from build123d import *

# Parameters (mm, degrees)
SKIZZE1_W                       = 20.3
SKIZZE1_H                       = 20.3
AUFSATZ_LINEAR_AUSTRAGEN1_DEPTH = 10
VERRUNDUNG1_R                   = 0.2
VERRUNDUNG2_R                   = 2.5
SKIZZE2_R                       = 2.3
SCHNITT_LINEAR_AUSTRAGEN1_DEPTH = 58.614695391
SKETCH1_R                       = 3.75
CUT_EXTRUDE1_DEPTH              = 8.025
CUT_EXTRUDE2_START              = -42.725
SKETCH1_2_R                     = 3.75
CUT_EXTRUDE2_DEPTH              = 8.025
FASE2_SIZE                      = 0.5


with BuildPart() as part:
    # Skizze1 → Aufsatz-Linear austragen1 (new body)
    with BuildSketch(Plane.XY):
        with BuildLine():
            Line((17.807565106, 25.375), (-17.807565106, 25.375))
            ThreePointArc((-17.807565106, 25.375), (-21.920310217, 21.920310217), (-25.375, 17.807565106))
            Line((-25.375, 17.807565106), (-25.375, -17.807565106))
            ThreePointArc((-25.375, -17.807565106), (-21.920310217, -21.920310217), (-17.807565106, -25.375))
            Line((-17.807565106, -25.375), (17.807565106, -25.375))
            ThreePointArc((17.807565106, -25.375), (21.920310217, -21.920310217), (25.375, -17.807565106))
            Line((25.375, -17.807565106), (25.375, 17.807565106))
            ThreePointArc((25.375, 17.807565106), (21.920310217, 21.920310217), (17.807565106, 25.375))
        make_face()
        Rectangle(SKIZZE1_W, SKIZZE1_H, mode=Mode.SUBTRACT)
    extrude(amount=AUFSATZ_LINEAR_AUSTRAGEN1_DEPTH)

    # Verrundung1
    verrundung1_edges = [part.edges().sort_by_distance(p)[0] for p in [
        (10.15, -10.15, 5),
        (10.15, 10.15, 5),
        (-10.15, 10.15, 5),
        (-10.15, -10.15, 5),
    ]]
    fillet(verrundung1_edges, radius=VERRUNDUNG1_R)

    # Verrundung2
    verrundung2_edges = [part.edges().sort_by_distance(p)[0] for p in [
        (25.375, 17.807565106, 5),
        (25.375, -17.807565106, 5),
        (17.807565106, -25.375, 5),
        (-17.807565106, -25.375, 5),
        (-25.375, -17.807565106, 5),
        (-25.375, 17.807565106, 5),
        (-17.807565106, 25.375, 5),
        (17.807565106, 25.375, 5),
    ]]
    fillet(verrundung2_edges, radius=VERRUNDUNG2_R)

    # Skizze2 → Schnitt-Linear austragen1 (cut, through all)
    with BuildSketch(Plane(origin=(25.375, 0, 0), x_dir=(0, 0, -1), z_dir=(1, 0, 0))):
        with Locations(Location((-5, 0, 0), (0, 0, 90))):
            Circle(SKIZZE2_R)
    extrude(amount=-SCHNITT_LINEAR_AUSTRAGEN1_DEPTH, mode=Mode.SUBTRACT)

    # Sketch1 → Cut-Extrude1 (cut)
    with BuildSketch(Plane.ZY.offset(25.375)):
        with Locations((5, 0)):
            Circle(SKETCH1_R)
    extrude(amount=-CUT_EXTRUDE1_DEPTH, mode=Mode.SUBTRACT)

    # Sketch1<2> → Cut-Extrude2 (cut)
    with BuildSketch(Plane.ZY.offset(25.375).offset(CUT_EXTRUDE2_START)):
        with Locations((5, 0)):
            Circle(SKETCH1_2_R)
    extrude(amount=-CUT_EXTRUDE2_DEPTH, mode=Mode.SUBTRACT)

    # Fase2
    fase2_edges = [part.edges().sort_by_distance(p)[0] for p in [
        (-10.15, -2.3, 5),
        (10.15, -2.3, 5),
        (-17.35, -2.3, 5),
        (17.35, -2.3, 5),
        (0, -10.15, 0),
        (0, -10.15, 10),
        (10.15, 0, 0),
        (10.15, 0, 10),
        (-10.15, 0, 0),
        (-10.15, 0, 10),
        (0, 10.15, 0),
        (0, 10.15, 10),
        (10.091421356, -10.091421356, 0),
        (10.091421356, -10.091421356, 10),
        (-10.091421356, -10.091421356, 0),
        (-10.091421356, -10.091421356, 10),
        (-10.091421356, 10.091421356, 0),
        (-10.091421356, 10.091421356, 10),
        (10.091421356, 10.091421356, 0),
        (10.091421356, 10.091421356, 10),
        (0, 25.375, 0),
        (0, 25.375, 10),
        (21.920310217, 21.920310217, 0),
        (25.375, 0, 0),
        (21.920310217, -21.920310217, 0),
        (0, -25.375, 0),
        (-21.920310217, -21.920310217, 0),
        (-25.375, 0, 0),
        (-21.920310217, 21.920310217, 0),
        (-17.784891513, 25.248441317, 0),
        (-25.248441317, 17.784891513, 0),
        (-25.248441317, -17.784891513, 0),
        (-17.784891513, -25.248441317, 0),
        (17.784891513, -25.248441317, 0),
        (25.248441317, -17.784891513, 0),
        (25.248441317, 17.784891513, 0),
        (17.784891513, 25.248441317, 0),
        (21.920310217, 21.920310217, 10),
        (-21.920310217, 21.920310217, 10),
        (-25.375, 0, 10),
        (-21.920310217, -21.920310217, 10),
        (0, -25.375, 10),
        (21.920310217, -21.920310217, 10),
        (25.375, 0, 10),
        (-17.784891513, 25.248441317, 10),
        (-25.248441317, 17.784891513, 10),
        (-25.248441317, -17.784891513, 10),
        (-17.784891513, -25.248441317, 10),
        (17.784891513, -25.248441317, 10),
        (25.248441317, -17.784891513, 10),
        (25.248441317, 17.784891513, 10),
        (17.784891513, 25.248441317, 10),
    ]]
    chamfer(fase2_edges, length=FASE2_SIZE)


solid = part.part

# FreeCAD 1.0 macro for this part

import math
import FreeCAD as App
import Part
import Sketcher


def edges_at(feature, points):
    """Names of the edges that pass closest to the given points."""
    edges = feature.Shape.Edges
    near = lambda p: min(range(len(edges)), key=lambda i: edges[i].distToShape(Part.Vertex(*p))[0])
    return sorted({f"Edge{near(p) + 1}" for p in points})


def add_polygon(sketch, points):
    """Adds a closed chain of lines whose ends are joined by coincident constraints."""
    first, n = sketch.GeometryCount, len(points)
    for a, b in zip(points, points[1:] + points[:1]):
        sketch.addGeometry(Part.LineSegment(App.Vector(*a, 0), App.Vector(*b, 0)), False)
    for i in range(n):
        sketch.addConstraint(Sketcher.Constraint("Coincident", first + i, 2, first + (i + 1) % n, 1))

doc = App.newDocument("Part")
params = doc.addObject("Spreadsheet::Sheet", "Params")
for row, (alias, value) in enumerate([
    ("sketch1_radius", "31 mm"),
    ("sketch1_width", "20.3 mm"),
    ("pad1_length", "10 mm"),
    ("fillet_radius", "0.2 mm"),
    ("fillet2_radius", "2.5 mm"),
    ("sketch2_diameter", "4.6 mm"),
    ("sketch3_diameter", "7.5 mm"),
    ("pocket2_length", "8.025 mm"),
    ("sketch4_diameter", "7.5 mm"),
    ("pocket3_length", "8.025 mm"),
    ("chamfer_size", "0.5 mm"),
], start=1):
    params.set(f"A{row}", alias)
    params.set(f"B{row}", "=" + value)
    params.setAlias(f"B{row}", alias)

body = doc.addObject("PartDesign::Body", "Body")

# Sketch on XY plane
sketch1 = body.newObject("Sketcher::SketchObject", "Sketch")
sketch1.AttachmentSupport = (doc.getObject("XY_Plane"), [""])
sketch1.MapMode = "FlatFace"
sketch1.addGeometry(Part.LineSegment(App.Vector(18, 25, 0), App.Vector(-18, 25, 0)), False)  # 0
sketch1.addGeometry(Part.ArcOfCircle(Part.Circle(App.Vector(0, 0, 0), App.Vector(0, 0, 1), 31), math.radians(125.06), math.radians(144.94)), False)  # 1
sketch1.addGeometry(Part.LineSegment(App.Vector(-25, 18, 0), App.Vector(-25, -18, 0)), False)  # 2
sketch1.addGeometry(Part.ArcOfCircle(Part.Circle(App.Vector(0, 0, 0), App.Vector(0, 0, 1), 31), math.radians(-144.94), math.radians(-125.06)), False)  # 3
sketch1.addGeometry(Part.LineSegment(App.Vector(-18, -25, 0), App.Vector(18, -25, 0)), False)  # 4
sketch1.addGeometry(Part.ArcOfCircle(Part.Circle(App.Vector(0, 0, 0), App.Vector(0, 0, 1), 31), math.radians(-54.94), math.radians(-35.06)), False)  # 5
sketch1.addGeometry(Part.LineSegment(App.Vector(25, -18, 0), App.Vector(25, 18, 0)), False)  # 6
sketch1.addGeometry(Part.ArcOfCircle(Part.Circle(App.Vector(0, 0, 0), App.Vector(0, 0, 1), 31), math.radians(35.06), math.radians(54.94)), False)  # 7
add_polygon(sketch1, [(10, -10), (-10, -10), (-10, 10), (10, 10)])  # lines 8-11
sketch1.addConstraint(Sketcher.Constraint("Coincident", 0, 2, 1, 1))
sketch1.addConstraint(Sketcher.Constraint("Coincident", 1, 2, 2, 1))
sketch1.addConstraint(Sketcher.Constraint("Coincident", 2, 2, 3, 1))
sketch1.addConstraint(Sketcher.Constraint("Coincident", 3, 2, 4, 1))
sketch1.addConstraint(Sketcher.Constraint("Coincident", 4, 2, 5, 1))
sketch1.addConstraint(Sketcher.Constraint("Coincident", 5, 2, 6, 1))
sketch1.addConstraint(Sketcher.Constraint("Coincident", 6, 2, 7, 1))
sketch1.addConstraint(Sketcher.Constraint("Coincident", 7, 2, 0, 1))
sketch1.addConstraint(Sketcher.Constraint("Horizontal", 0))
sketch1.addConstraint(Sketcher.Constraint("Vertical", 2))
sketch1.addConstraint(Sketcher.Constraint("Horizontal", 4))
sketch1.addConstraint(Sketcher.Constraint("Vertical", 6))
sketch1.addConstraint(Sketcher.Constraint("Horizontal", 8))
sketch1.addConstraint(Sketcher.Constraint("Vertical", 9))
sketch1.addConstraint(Sketcher.Constraint("Horizontal", 10))
sketch1.addConstraint(Sketcher.Constraint("Vertical", 11))
sketch1.addConstraint(Sketcher.Constraint("Coincident", 1, 3, -1, 1))
sketch1.addConstraint(Sketcher.Constraint("Coincident", 3, 3, -1, 1))
sketch1.addConstraint(Sketcher.Constraint("Coincident", 5, 3, -1, 1))
sketch1.addConstraint(Sketcher.Constraint("Coincident", 7, 3, -1, 1))
sketch1.addConstraint(Sketcher.Constraint("Equal", 1, 3))
sketch1.addConstraint(Sketcher.Constraint("Equal", 3, 5))
sketch1.addConstraint(Sketcher.Constraint("Equal", 5, 7))
sketch1.addConstraint(Sketcher.Constraint("Symmetric", 8, 2, 10, 2, -1, 1))
sketch1.addConstraint(Sketcher.Constraint("Horizontal", 2, 2, 5, 2))
sketch1.addConstraint(Sketcher.Constraint("Vertical", 0, 2, 3, 2))
sketch1.addConstraint(Sketcher.Constraint("Equal", 4, 2))
sketch1.addConstraint(Sketcher.Constraint("Equal", 10, 9))
sketch1.addConstraint(Sketcher.Constraint("Radius", 1, 31.0))
sketch1.addConstraint(Sketcher.Constraint("DistanceX", 8, 2, 8, 1, 20.3))
sketch1.addConstraint(Sketcher.Constraint("DistanceY", -1, 1, 0, 2, 25.375))
sketch1.setExpression("Constraints[32]", "Params.sketch1_radius")
sketch1.setExpression("Constraints[33]", "Params.sketch1_width")
pad1 = body.newObject("PartDesign::Pad", "Pad")
pad1.Profile = sketch1
pad1.setExpression("Length", "Params.pad1_length")
doc.recompute()

fillet = body.newObject("PartDesign::Fillet", "Fillet")
fillet.Base = (pad1, edges_at(pad1, [
    (10.15, -10.15, 5),
    (10.15, 10.15, 5),
    (-10.15, 10.15, 5),
    (-10.15, -10.15, 5),
]))
fillet.setExpression("Radius", "Params.fillet_radius")
doc.recompute()

fillet2 = body.newObject("PartDesign::Fillet", "Fillet001")
fillet2.Base = (fillet, edges_at(fillet, [
    (25.375, 17.808, 5),
    (25.375, -17.808, 5),
    (17.808, -25.375, 5),
    (-17.808, -25.375, 5),
    (-25.375, -17.808, 5),
    (-25.375, 17.808, 5),
    (-17.808, 25.375, 5),
    (17.808, 25.375, 5),
]))
fillet2.setExpression("Radius", "Params.fillet2_radius")

# Sketch on YZ plane
sketch2 = body.newObject("Sketcher::SketchObject", "Sketch001")
sketch2.AttachmentSupport = (doc.getObject("YZ_Plane"), [""])
sketch2.MapMode = "FlatFace"
sketch2.AttachmentOffset = App.Placement(App.Vector(0, 0, 25.375), App.Rotation())
sketch2.addGeometry(Part.Circle(App.Vector(0, 5, 0), App.Vector(0, 0, 1), 2.3), False)
sketch2.addConstraint(Sketcher.Constraint("PointOnObject", 0, 3, -2))
sketch2.addConstraint(Sketcher.Constraint("Diameter", 0, 4.6))
sketch2.addConstraint(Sketcher.Constraint("DistanceY", -1, 1, 0, 3, 5.0))
sketch2.setExpression("Constraints[1]", "Params.sketch2_diameter")
pocket1 = body.newObject("PartDesign::Pocket", "Pocket")
pocket1.Profile = sketch2
pocket1.Type = "ThroughAll"

# Sketch on YZ plane
sketch3 = body.newObject("Sketcher::SketchObject", "Sketch002")
sketch3.AttachmentSupport = (doc.getObject("YZ_Plane"), [""])
sketch3.MapMode = "FlatFace"
sketch3.AttachmentOffset = App.Placement(App.Vector(0, 0, -25.375), App.Rotation())
sketch3.addGeometry(Part.Circle(App.Vector(0, 5, 0), App.Vector(0, 0, 1), 3.8), False)
sketch3.addConstraint(Sketcher.Constraint("PointOnObject", 0, 3, -2))
sketch3.addConstraint(Sketcher.Constraint("Diameter", 0, 7.5))
sketch3.addConstraint(Sketcher.Constraint("DistanceY", -1, 1, 0, 3, 5.0))
sketch3.setExpression("Constraints[1]", "Params.sketch3_diameter")
pocket2 = body.newObject("PartDesign::Pocket", "Pocket001")
pocket2.Profile = sketch3
pocket2.setExpression("Length", "Params.pocket2_length")
pocket2.Reversed = True

# Sketch on YZ plane
sketch4 = body.newObject("Sketcher::SketchObject", "Sketch003")
sketch4.AttachmentSupport = (doc.getObject("YZ_Plane"), [""])
sketch4.MapMode = "FlatFace"
sketch4.AttachmentOffset = App.Placement(App.Vector(0, 0, 17.35), App.Rotation())
sketch4.addGeometry(Part.Circle(App.Vector(0, 5, 0), App.Vector(0, 0, 1), 3.8), False)
sketch4.addConstraint(Sketcher.Constraint("PointOnObject", 0, 3, -2))
sketch4.addConstraint(Sketcher.Constraint("Diameter", 0, 7.5))
sketch4.addConstraint(Sketcher.Constraint("DistanceY", -1, 1, 0, 3, 5.0))
sketch4.setExpression("Constraints[1]", "Params.sketch4_diameter")
pocket3 = body.newObject("PartDesign::Pocket", "Pocket002")
pocket3.Profile = sketch4
pocket3.setExpression("Length", "Params.pocket3_length")
pocket3.Reversed = True
doc.recompute()

chamfer = body.newObject("PartDesign::Chamfer", "Chamfer")
chamfer.Base = (pocket3, edges_at(pocket3, [
    (-10.15, -2.3, 5),
    (10.15, -2.3, 5),
    (-17.35, -2.3, 5),
    (17.35, -2.3, 5),
    (0, -10.15, 0),
    (0, -10.15, 10),
    (10.15, 0, 0),
    (10.15, 0, 10),
    (-10.15, 0, 0),
    (-10.15, 0, 10),
    (0, 10.15, 0),
    (0, 10.15, 10),
    (10.091, -10.091, 0),
    (10.091, -10.091, 10),
    (-10.091, -10.091, 0),
    (-10.091, -10.091, 10),
    (-10.091, 10.091, 0),
    (-10.091, 10.091, 10),
    (10.091, 10.091, 0),
    (10.091, 10.091, 10),
    (0, 25.375, 0),
    (0, 25.375, 10),
    (21.92, 21.92, 0),
    (25.375, 0, 0),
    (21.92, -21.92, 0),
    (0, -25.375, 0),
    (-21.92, -21.92, 0),
    (-25.375, 0, 0),
    (-21.92, 21.92, 0),
    (-17.785, 25.248, 0),
    (-25.248, 17.785, 0),
    (-25.248, -17.785, 0),
    (-17.785, -25.248, 0),
    (17.785, -25.248, 0),
    (25.248, -17.785, 0),
    (25.248, 17.785, 0),
    (17.785, 25.248, 0),
    (21.92, 21.92, 10),
    (-21.92, 21.92, 10),
    (-25.375, 0, 10),
    (-21.92, -21.92, 10),
    (0, -25.375, 10),
    (21.92, -21.92, 10),
    (25.375, 0, 10),
    (-17.785, 25.248, 10),
    (-25.248, 17.785, 10),
    (-25.248, -17.785, 10),
    (-17.785, -25.248, 10),
    (17.785, -25.248, 10),
    (25.248, -17.785, 10),
    (25.248, 17.785, 10),
    (17.785, 25.248, 10),
]))
chamfer.setExpression("Size", "Params.chamfer_size")

doc.recompute()
